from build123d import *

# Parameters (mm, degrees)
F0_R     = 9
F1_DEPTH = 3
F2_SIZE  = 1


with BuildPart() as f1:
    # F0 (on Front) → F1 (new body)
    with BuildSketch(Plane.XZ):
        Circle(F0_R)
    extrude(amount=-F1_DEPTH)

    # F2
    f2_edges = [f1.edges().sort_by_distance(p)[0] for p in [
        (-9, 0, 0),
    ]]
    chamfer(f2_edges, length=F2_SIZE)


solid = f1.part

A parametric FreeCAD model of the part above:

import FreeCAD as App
import Part
import Sketcher
from FreeCAD import Vector
Q = App.Units.Quantity


def edges_at(feature, points):
    """Names of the edges that pass closest to the given points."""
    edges = feature.Shape.Edges
    near = lambda p: min(range(len(edges)), key=lambda i: edges[i].distToShape(Part.Vertex(*p))[0])
    return sorted({f"Edge{near(p) + 1}" for p in points})

doc = App.newDocument("Part")
body = doc.addObject("PartDesign::Body", "Body")

# Sketch on XZ plane
sketch1 = doc.addObject("Sketcher::SketchObject", "Sketch")
body.addObject(sketch1)
sketch1.AttachmentSupport = (doc.XZ_Plane, [""])
sketch1.MapMode = "FlatFace"
sketch1.addGeometry(Part.Circle(Vector(0, 0, 0), Vector(0, 0, 1), 9), False)
sketch1.addConstraint([
    Sketcher.Constraint("Coincident", 0, 3, -1, 1),
    Sketcher.Constraint("Diameter", 0, Q("18 mm")),
])
pad1 = doc.addObject("PartDesign::Pad", "Pad")
body.addObject(pad1)
pad1.Profile = sketch1
pad1.Length = 3
pad1.Reversed = True
doc.recompute()

chamfer = doc.addObject("PartDesign::Chamfer", "Chamfer")
body.addObject(chamfer)
chamfer.Base = (pad1, edges_at(pad1, [(-9, 0, 0)]))
chamfer.Size = 1

doc.recompute()
